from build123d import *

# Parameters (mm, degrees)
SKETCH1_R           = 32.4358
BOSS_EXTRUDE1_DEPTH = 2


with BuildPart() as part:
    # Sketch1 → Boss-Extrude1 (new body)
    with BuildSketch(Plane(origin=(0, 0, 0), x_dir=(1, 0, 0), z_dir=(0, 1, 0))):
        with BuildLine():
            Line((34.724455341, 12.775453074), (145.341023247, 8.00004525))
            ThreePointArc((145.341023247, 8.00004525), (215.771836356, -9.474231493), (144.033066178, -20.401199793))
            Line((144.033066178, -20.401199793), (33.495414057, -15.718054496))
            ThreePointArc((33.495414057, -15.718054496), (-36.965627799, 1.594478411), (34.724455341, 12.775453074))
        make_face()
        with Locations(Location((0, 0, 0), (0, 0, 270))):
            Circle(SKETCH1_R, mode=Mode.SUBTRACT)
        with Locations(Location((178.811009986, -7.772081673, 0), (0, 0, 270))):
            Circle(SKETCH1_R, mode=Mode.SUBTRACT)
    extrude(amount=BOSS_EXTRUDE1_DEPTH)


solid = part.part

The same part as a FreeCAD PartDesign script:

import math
import FreeCAD as App
import Part
import Sketcher

V = App.Vector

doc = App.newDocument("Part")
body = doc.addObject("PartDesign::Body", "Body")

# Sketch on XZ plane
sketch1 = body.newObject("Sketcher::SketchObject", "Sketch")
sketch1.AttachmentSupport = (doc.getObject("XZ_Plane"), [""])
sketch1.MapMode = "FlatFace"
sketch1.addGeometry(Part.LineSegment(V(145.341023, -8.000045, 0), V(34.724455, -12.775453, 0)), False)
sketch1.addGeometry(Part.ArcOfCircle(Part.Circle(V(0, 0, 0), V(0, 0, 1), 37), math.radians(25.138782), math.radians(339.800957)), False)
sketch1.addGeometry(Part.LineSegment(V(33.495414, 15.718054, 0), V(144.033066, 20.4012, 0)), False)
sketch1.addGeometry(Part.ArcOfCircle(Part.Circle(V(178.81101, 7.772082, 0), V(0, 0, 1), 37), math.radians(-154.768689), math.radians(160.042226)), False)
sketch1.addGeometry(Part.Circle(V(178.81101, 7.772082, 0), V(0, 0, 1), 32.4358), False)
sketch1.addGeometry(Part.Circle(V(0, 0, 0), V(0, 0, 1), 32.4358), False)
sketch1.addConstraint(Sketcher.Constraint("Coincident", 0, 2, 1, 2))
sketch1.addConstraint(Sketcher.Constraint("Coincident", 1, 1, 2, 1))
sketch1.addConstraint(Sketcher.Constraint("Coincident", 2, 2, 3, 2))
sketch1.addConstraint(Sketcher.Constraint("Coincident", 3, 1, 0, 1))
sketch1.addConstraint(Sketcher.Constraint("Coincident", 1, 3, -1, 1))
sketch1.addConstraint(Sketcher.Constraint("Coincident", 5, 3, -1, 1))
sketch1.addConstraint(Sketcher.Constraint("Coincident", 4, 3, 3, 3))
sketch1.addConstraint(Sketcher.Constraint("Equal", 1, 3))
sketch1.addConstraint(Sketcher.Constraint("Equal", 4, 5))
sketch1.addConstraint(Sketcher.Constraint("Radius", 1, 37.0))
sketch1.addConstraint(Sketcher.Constraint("Diameter", 4, 64.8716))
sketch1.addConstraint(Sketcher.Constraint("Distance", 0, 110.719599))
sketch1.addConstraint(Sketcher.Constraint("DistanceY", -1, 1, 2, 2, 20.4012))
sketch1.addConstraint(Sketcher.Constraint("DistanceY", 3, 1, 1, 1, 23.7181))
sketch1.addConstraint(Sketcher.Constraint("DistanceX", -1, 1, 3, 3, 178.81101))
sketch1.addConstraint(Sketcher.Constraint("DistanceY", -1, 1, 3, 3, 7.772082))
sketch1.addConstraint(Sketcher.Constraint("DistanceX", 1, 1, 0, 2, 1.229041))
pad1 = body.newObject("PartDesign::Pad", "Pad")
pad1.Profile = sketch1
pad1.Length = 2
pad1.Reversed = True

doc.recompute()
